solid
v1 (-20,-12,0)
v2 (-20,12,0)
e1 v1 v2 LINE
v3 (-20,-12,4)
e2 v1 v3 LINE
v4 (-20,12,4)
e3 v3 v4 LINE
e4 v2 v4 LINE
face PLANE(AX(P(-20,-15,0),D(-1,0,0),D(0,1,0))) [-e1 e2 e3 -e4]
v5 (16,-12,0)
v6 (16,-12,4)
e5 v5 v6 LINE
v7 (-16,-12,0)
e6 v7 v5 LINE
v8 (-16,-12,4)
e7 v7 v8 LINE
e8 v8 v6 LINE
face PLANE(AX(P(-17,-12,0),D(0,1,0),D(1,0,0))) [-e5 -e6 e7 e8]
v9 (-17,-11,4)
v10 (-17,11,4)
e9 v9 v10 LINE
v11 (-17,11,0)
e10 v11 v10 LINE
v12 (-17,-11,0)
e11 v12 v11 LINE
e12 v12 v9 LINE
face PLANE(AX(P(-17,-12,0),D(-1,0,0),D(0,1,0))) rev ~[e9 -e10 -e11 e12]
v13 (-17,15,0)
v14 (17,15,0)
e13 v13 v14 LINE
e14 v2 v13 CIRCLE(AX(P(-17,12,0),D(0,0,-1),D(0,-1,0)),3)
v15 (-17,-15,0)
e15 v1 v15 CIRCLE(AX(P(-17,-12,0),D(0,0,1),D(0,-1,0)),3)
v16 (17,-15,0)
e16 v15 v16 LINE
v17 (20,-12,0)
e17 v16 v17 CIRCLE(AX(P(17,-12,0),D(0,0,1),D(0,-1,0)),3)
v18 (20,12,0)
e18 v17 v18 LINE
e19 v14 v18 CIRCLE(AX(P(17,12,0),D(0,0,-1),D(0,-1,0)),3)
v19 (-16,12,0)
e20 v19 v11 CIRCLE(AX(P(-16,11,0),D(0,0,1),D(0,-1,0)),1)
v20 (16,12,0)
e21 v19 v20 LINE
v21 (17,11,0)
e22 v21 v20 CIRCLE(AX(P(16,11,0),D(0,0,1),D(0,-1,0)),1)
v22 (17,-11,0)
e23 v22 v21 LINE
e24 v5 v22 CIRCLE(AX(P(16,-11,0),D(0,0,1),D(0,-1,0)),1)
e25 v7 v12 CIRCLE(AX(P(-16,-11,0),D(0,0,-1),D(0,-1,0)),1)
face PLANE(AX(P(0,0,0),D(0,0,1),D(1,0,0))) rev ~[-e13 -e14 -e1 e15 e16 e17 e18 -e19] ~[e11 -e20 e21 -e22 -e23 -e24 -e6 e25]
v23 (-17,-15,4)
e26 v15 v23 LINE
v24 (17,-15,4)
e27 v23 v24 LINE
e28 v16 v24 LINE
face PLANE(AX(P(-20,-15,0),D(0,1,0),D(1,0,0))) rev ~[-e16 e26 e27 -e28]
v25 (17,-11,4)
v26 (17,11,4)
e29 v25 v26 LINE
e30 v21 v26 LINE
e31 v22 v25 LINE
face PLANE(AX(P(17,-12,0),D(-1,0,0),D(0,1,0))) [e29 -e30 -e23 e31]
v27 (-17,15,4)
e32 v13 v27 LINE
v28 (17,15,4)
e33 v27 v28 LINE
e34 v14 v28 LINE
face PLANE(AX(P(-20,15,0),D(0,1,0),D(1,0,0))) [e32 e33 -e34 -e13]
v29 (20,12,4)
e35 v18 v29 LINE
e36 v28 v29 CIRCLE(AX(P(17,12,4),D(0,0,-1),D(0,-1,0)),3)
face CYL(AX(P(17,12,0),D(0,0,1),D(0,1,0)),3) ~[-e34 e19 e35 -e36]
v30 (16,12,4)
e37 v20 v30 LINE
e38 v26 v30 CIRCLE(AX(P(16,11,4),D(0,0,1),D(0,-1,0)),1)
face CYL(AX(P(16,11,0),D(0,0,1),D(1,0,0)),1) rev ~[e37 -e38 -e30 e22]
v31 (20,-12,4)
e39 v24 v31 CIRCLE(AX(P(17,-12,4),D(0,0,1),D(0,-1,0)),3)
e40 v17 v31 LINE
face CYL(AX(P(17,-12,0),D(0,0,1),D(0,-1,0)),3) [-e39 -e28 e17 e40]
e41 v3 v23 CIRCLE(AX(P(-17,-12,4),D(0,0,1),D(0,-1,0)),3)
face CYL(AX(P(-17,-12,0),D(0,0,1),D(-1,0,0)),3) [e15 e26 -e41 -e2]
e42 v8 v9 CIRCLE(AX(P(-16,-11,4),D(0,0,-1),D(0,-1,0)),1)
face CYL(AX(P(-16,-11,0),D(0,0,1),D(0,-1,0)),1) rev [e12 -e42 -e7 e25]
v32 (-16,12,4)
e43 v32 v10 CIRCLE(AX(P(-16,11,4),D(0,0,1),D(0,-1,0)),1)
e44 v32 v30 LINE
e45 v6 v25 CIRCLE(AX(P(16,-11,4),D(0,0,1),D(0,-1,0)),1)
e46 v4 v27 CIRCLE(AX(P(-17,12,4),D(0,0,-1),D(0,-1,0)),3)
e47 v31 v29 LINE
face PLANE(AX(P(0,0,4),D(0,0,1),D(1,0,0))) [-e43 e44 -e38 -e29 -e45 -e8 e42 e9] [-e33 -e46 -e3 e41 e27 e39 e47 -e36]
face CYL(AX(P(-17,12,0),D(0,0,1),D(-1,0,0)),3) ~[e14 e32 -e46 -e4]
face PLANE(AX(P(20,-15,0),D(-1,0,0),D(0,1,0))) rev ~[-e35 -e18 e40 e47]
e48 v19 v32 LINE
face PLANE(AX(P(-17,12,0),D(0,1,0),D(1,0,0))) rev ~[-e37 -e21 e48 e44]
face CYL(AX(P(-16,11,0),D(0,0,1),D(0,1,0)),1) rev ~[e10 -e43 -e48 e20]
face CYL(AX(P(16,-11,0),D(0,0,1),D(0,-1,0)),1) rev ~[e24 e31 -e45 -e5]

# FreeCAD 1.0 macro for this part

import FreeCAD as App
import Part
import Sketcher


def edges_at(feature, points):
    """Names of the edges that pass closest to the given points."""
    edges = feature.Shape.Edges
    near = lambda p: min(range(len(edges)), key=lambda i: edges[i].distToShape(Part.Vertex(*p))[0])
    return sorted({f"Edge{near(p) + 1}" for p in points})


def add_polygon(sketch, points):
    """Adds a closed chain of lines whose ends are joined by coincident constraints."""
    first, n = sketch.GeometryCount, len(points)
    for a, b in zip(points, points[1:] + points[:1]):
        sketch.addGeometry(Part.LineSegment(App.Vector(*a, 0), App.Vector(*b, 0)), False)
    for i in range(n):
        sketch.addConstraint(Sketcher.Constraint("Coincident", first + i, 2, first + (i + 1) % n, 1))

doc = App.newDocument("Part")
params = doc.addObject("Spreadsheet::Sheet", "Params")
for row, (alias, value) in enumerate([
    ("sketch1_width", "40 mm"),
    ("sketch1_width2", "34 mm"),
    ("sketch1_height", "30 mm"),
    ("sketch1_height2", "24 mm"),
    ("pad1_length", "4 mm"),
    ("fillet_radius", "3 mm"),
    ("fillet2_radius", "1 mm"),
], start=1):
    params.set(f"A{row}", alias)
    params.set(f"B{row}", "=" + value)
    params.setAlias(f"B{row}", alias)

body = doc.addObject("PartDesign::Body", "Body")

# Sketch on XY plane
sketch1 = body.newObject("Sketcher::SketchObject", "Sketch")
sketch1.AttachmentSupport = (doc.getObject("XY_Plane"), [""])
sketch1.MapMode = "FlatFace"
add_polygon(sketch1, [(-20, 15), (-20, -15), (20, -15), (20, 15)])  # lines 0-3
add_polygon(sketch1, [(17, -12), (-17, -12), (-17, 12), (17, 12)])  # lines 4-7
sketch1.addConstraint(Sketcher.Constraint("Vertical", 0))
sketch1.addConstraint(Sketcher.Constraint("Horizontal", 1))
sketch1.addConstraint(Sketcher.Constraint("Vertical", 2))
sketch1.addConstraint(Sketcher.Constraint("Horizontal", 3))
sketch1.addConstraint(Sketcher.Constraint("Horizontal", 4))
sketch1.addConstraint(Sketcher.Constraint("Vertical", 5))
sketch1.addConstraint(Sketcher.Constraint("Horizontal", 6))
sketch1.addConstraint(Sketcher.Constraint("Vertical", 7))
sketch1.addConstraint(Sketcher.Constraint("Symmetric", 0, 2, 2, 2, -1, 1))
sketch1.addConstraint(Sketcher.Constraint("Symmetric", 4, 2, 6, 2, -1, 1))
sketch1.addConstraint(Sketcher.Constraint("DistanceX", 1, 1, 1, 2, 40.0))
sketch1.addConstraint(Sketcher.Constraint("DistanceX", 4, 2, 4, 1, 34.0))
sketch1.addConstraint(Sketcher.Constraint("DistanceY", 0, 2, 0, 1, 30.0))
sketch1.addConstraint(Sketcher.Constraint("DistanceY", 5, 1, 5, 2, 24.0))
sketch1.setExpression("Constraints[18]", "Params.sketch1_width")
sketch1.setExpression("Constraints[19]", "Params.sketch1_width2")
sketch1.setExpression("Constraints[20]", "Params.sketch1_height")
sketch1.setExpression("Constraints[21]", "Params.sketch1_height2")
pad1 = body.newObject("PartDesign::Pad", "Pad")
pad1.Profile = sketch1
pad1.setExpression("Length", "Params.pad1_length")
doc.recompute()

fillet = body.newObject("PartDesign::Fillet", "Fillet")
fillet.Base = (pad1, edges_at(pad1, [
    (-20, -15, 2),
    (20, -15, 2),
    (20, 15, 2),
    (-20, 15, 2),
]))
fillet.setExpression("Radius", "Params.fillet_radius")
doc.recompute()

fillet2 = body.newObject("PartDesign::Fillet", "Fillet001")
fillet2.Base = (fillet, edges_at(fillet, [
    (17, 12, 2),
    (-17, 12, 2),
    (-17, -12, 2),
    (17, -12, 2),
]))
fillet2.setExpression("Radius", "Params.fillet2_radius")

doc.recompute()
